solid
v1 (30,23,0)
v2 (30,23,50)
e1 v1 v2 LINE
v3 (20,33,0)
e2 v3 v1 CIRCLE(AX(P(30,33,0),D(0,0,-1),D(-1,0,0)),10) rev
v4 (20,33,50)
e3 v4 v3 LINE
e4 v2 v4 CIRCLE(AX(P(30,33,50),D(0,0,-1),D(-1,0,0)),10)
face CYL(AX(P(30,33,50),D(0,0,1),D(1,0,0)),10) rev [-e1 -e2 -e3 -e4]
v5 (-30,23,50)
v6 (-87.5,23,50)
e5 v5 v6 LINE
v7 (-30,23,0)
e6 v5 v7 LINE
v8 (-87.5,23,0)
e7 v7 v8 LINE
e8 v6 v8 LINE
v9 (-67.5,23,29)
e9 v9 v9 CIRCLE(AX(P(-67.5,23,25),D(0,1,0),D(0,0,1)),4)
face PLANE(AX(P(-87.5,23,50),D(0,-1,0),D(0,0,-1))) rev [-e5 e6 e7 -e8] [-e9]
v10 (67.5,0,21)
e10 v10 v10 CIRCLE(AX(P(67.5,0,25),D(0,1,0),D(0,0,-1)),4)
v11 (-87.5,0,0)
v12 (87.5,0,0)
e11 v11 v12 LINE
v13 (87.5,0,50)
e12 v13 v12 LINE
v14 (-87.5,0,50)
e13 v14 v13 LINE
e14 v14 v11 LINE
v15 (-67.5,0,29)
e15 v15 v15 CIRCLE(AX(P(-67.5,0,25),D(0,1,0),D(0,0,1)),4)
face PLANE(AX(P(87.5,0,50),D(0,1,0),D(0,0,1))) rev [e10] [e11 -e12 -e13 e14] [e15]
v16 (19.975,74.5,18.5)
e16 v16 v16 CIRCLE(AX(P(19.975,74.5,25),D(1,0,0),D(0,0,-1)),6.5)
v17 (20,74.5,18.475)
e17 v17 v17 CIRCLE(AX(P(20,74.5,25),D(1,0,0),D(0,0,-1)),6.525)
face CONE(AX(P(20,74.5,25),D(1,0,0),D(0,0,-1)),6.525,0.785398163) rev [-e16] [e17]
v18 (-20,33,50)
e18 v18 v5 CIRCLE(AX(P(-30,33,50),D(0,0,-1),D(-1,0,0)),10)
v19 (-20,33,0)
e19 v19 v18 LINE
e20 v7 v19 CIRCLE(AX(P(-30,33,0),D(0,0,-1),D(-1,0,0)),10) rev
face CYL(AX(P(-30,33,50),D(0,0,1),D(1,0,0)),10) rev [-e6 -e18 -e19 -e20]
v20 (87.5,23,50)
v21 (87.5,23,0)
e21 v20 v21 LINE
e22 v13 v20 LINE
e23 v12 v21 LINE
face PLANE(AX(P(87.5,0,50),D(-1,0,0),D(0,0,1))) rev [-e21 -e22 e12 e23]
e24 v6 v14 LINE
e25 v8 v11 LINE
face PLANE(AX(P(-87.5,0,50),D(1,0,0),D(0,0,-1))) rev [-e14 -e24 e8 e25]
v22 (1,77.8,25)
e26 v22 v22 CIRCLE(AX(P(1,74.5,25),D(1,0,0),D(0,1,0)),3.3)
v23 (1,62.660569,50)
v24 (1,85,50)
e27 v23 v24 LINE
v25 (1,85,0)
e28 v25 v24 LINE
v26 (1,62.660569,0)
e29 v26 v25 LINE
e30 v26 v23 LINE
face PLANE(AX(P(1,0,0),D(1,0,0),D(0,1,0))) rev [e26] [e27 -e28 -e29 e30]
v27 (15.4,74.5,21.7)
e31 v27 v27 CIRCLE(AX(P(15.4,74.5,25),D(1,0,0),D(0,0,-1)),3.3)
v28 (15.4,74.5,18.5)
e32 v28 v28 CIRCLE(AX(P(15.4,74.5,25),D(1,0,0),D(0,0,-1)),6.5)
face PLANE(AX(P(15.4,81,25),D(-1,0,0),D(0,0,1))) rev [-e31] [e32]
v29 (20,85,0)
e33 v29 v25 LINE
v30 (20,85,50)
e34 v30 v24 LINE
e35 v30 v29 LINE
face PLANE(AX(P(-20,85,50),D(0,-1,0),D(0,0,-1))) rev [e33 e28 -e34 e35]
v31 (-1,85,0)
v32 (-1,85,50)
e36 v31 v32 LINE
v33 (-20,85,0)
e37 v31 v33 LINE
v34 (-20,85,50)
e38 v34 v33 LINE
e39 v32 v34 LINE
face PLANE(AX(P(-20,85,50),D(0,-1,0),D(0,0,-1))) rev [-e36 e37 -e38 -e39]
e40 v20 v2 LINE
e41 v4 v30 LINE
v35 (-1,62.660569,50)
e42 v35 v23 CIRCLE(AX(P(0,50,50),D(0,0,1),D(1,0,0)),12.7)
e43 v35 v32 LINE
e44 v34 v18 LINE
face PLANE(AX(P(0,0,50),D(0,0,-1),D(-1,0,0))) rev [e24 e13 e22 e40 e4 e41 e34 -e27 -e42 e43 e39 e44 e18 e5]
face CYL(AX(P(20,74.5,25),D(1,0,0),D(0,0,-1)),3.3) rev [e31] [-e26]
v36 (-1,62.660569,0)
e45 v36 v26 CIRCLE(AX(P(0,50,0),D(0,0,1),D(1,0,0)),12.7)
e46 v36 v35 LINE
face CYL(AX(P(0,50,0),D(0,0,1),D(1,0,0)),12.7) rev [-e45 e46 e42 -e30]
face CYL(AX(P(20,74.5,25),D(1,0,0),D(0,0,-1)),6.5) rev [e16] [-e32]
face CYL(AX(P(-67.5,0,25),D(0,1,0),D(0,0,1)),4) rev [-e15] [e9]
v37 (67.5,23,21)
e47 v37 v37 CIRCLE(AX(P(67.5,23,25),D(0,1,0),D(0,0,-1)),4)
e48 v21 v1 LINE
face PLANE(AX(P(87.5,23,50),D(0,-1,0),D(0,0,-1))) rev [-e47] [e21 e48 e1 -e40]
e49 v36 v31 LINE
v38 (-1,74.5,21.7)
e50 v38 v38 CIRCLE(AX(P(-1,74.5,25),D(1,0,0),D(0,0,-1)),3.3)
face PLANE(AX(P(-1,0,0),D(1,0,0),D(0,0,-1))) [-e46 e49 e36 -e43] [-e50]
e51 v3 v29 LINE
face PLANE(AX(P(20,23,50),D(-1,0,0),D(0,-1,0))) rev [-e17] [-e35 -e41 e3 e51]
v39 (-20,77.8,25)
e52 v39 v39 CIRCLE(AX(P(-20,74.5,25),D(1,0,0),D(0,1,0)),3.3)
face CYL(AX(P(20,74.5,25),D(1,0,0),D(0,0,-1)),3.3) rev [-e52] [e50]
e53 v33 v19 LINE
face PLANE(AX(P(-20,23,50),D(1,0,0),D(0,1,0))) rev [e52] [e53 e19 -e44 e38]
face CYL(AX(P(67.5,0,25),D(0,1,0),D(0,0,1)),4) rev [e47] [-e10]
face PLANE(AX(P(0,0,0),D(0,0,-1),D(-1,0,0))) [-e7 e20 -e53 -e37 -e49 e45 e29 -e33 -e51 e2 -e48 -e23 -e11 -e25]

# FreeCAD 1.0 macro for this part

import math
import FreeCAD as App
import Part
import Sketcher
Q = App.Units.Quantity


def edges_at(feature, points):
    """Names of the edges that pass closest to the given points."""
    edges = feature.Shape.Edges
    near = lambda p: min(range(len(edges)), key=lambda i: edges[i].distToShape(Part.Vertex(*p))[0])
    return sorted({f"Edge{near(p) + 1}" for p in points})

doc = App.newDocument("Part")
params = doc.addObject("Spreadsheet::Sheet", "Params")
for row, (alias, value) in enumerate([
    ("sketch1_width", "175 mm"),
    ("sketch1_width2", "40 mm"),
    ("sketch1_height", "23 mm"),
    ("sketch1_height2", "62 mm"),
    ("pad1_length", "50 mm"),
    ("sketch2_diameter", "8 mm"),
    ("sketch3_radius", "12.7 mm"),
    ("sketch3_width", "2 mm"),
    ("fillet_radius", "10 mm"),
    ("sketch4_width", "107.5 mm"),
    ("sketch4_width2", "102.9 mm"),
    ("sketch4_height", "3.2 mm"),
    ("sketch4_height2", "3.3 mm"),
    ("groove_angle", "360 deg"),
], start=1):
    params.set(f"A{row}", alias)
    params.set(f"B{row}", "=" + value)
    params.setAlias(f"B{row}", alias)

body = doc.addObject("PartDesign::Body", "Body")

# Sketch on XY plane
sketch1 = doc.addObject("Sketcher::SketchObject", "Sketch")
body.addObject(sketch1)
sketch1.AttachmentSupport = (doc.XY_Plane, [""])
sketch1.MapMode = "FlatFace"
sketch1.addGeometry([
    Part.LineSegment(App.Vector(-88, 0, 0), App.Vector(88, 0, 0)),  # 0
    Part.LineSegment(App.Vector(88, 0, 0), App.Vector(88, 23, 0)),  # 1
    Part.LineSegment(App.Vector(88, 23, 0), App.Vector(20, 23, 0)),  # 2
    Part.LineSegment(App.Vector(20, 23, 0), App.Vector(20, 85, 0)),  # 3
    Part.LineSegment(App.Vector(20, 85, 0), App.Vector(-20, 85, 0)),  # 4
    Part.LineSegment(App.Vector(-20, 85, 0), App.Vector(-20, 23, 0)),  # 5
    Part.LineSegment(App.Vector(-20, 23, 0), App.Vector(-88, 23, 0)),  # 6
    Part.LineSegment(App.Vector(-88, 23, 0), App.Vector(-88, 0, 0)),  # 7
], False)
sketch1.addConstraint([
    Sketcher.Constraint("Coincident", 0, 2, 1, 1),
    Sketcher.Constraint("Coincident", 1, 2, 2, 1),
    Sketcher.Constraint("Coincident", 2, 2, 3, 1),
    Sketcher.Constraint("Coincident", 3, 2, 4, 1),
    Sketcher.Constraint("Coincident", 4, 2, 5, 1),
    Sketcher.Constraint("Coincident", 5, 2, 6, 1),
    Sketcher.Constraint("Coincident", 6, 2, 7, 1),
    Sketcher.Constraint("Coincident", 7, 2, 0, 1),
    Sketcher.Constraint("Horizontal", 0),
    Sketcher.Constraint("Vertical", 1),
    Sketcher.Constraint("Horizontal", 2),
    Sketcher.Constraint("Vertical", 3),
    Sketcher.Constraint("Horizontal", 4),
    Sketcher.Constraint("Vertical", 5),
    Sketcher.Constraint("Horizontal", 6),
    Sketcher.Constraint("Vertical", 7),
    Sketcher.Constraint("Symmetric", 0, 2, 7, 2, -1, 1),
    Sketcher.Constraint("Symmetric", 2, 2, 5, 2, -2),
    Sketcher.Constraint("DistanceX", 0, 1, 0, 2, 175.0),
    Sketcher.Constraint("DistanceX", 4, 2, 4, 1, 40.0),
    Sketcher.Constraint("DistanceY", 1, 1, 1, 2, 23.0),
    Sketcher.Constraint("DistanceY", 3, 1, 3, 2, 62.0),
])
sketch1.setExpression("Constraints[18]", "Params.sketch1_width")
sketch1.setExpression("Constraints[19]", "Params.sketch1_width2")
sketch1.setExpression("Constraints[20]", "Params.sketch1_height")
sketch1.setExpression("Constraints[21]", "Params.sketch1_height2")
pad1 = doc.addObject("PartDesign::Pad", "Pad")
body.addObject(pad1)
pad1.Profile = sketch1
pad1.setExpression("Length", "Params.pad1_length")

# Sketch on XZ plane
sketch2 = doc.addObject("Sketcher::SketchObject", "Sketch001")
body.addObject(sketch2)
sketch2.AttachmentSupport = (doc.XZ_Plane, [""])
sketch2.MapMode = "FlatFace"
sketch2.AttachmentOffset = App.Placement(App.Vector(0, 0, -23), App.Rotation())
sketch2.addGeometry([
    Part.Circle(App.Vector(-67.5, 25, 0), App.Vector(0, 0, 1), 4),
    Part.Circle(App.Vector(67.5, 25, 0), App.Vector(0, 0, 1), 4),
], False)
sketch2.addConstraint([
    Sketcher.Constraint("Equal", 0, 1),
    Sketcher.Constraint("Symmetric", 0, 3, 1, 3, -2),
    Sketcher.Constraint("Diameter", 0, 8.0),
    Sketcher.Constraint("DistanceY", -1, 1, 0, 3, 25.0),
    Sketcher.Constraint("DistanceX", 0, 3, 1, 3, 135.0),
])
sketch2.setExpression("Constraints[2]", "Params.sketch2_diameter")
pocket1 = doc.addObject("PartDesign::Pocket", "Pocket")
body.addObject(pocket1)
pocket1.Profile = sketch2
pocket1.Type = "ThroughAll"
pocket1.Reversed = True

# Sketch on XY plane
sketch3 = doc.addObject("Sketcher::SketchObject", "Sketch002")
body.addObject(sketch3)
sketch3.AttachmentSupport = (doc.XY_Plane, [""])
sketch3.MapMode = "FlatFace"
sketch3.AttachmentOffset = App.Placement(App.Vector(0, 0, 50), App.Rotation())
sketch3.addGeometry([
    Part.LineSegment(App.Vector(1, 62.7, 0), App.Vector(1, 116.5, 0)),
    Part.LineSegment(App.Vector(1, 116.5, 0), App.Vector(-1, 116.5, 0)),
    Part.LineSegment(App.Vector(-1, 116.5, 0), App.Vector(-1, 62.7, 0)),
    Part.ArcOfCircle(Part.Circle(App.Vector(0, 50, 0), App.Vector(0, 0, 1), 12.7), math.radians(95), math.radians(445)),
], False)
sketch3.addConstraint([
    Sketcher.Constraint("Coincident", 0, 2, 1, 1),
    Sketcher.Constraint("Coincident", 1, 2, 2, 1),
    Sketcher.Constraint("Coincident", 2, 2, 3, 1),
    Sketcher.Constraint("Coincident", 3, 2, 0, 1),
    Sketcher.Constraint("Vertical", 0),
    Sketcher.Constraint("Horizontal", 1),
    Sketcher.Constraint("Vertical", 2),
    Sketcher.Constraint("Symmetric", 2, 2, 3, 2, -2),
    Sketcher.Constraint("Radius", 3, 12.7),
    Sketcher.Constraint("DistanceX", 1, 2, 1, 1, 2.0),
    Sketcher.Constraint("DistanceY", -1, 1, 3, 3, 50.0),
    Sketcher.Constraint("DistanceY", -1, 1, 0, 2, 116.5),
])
sketch3.setExpression("Constraints[8]", "Params.sketch3_radius")
sketch3.setExpression("Constraints[9]", "Params.sketch3_width")
pocket2 = doc.addObject("PartDesign::Pocket", "Pocket001")
body.addObject(pocket2)
pocket2.Profile = sketch3
pocket2.Type = "ThroughAll"
doc.recompute()

fillet = doc.addObject("PartDesign::Fillet", "Fillet")
body.addObject(fillet)
fillet.Base = (pocket2, edges_at(pocket2, [(-20, 23, 25), (20, 23, 25)]))
fillet.setExpression("Radius", "Params.fillet_radius")

# Sketch on XZ plane
sketch4 = doc.addObject("Sketcher::SketchObject", "Sketch003")
body.addObject(sketch4)
sketch4.AttachmentSupport = (doc.XZ_Plane, [""])
sketch4.MapMode = "FlatFace"
sketch4.AttachmentOffset = App.Placement(App.Vector(0, 0, -74.5), App.Rotation())
sketch4.addGeometry([
    Part.LineSegment(App.Vector(-87.5, 25, 0), App.Vector(20, 25, 0)),  # 0
    Part.LineSegment(App.Vector(20, 25, 0), App.Vector(20, 18.475, 0)),  # 1
    Part.LineSegment(App.Vector(20, 18.475, 0), App.Vector(19.975, 18.5, 0)),  # 2
    Part.LineSegment(App.Vector(19.975, 18.5, 0), App.Vector(15.4, 18.5, 0)),  # 3
    Part.LineSegment(App.Vector(15.4, 18.5, 0), App.Vector(15.4, 21.7, 0)),  # 4
    Part.LineSegment(App.Vector(15.4, 21.7, 0), App.Vector(-87.5, 21.7, 0)),  # 5
    Part.LineSegment(App.Vector(-87.5, 21.7, 0), App.Vector(-87.5, 25, 0)),  # 6
], False)
sketch4.addGeometry(Part.LineSegment(App.Vector(20, 25, 0), App.Vector(-87.5, 25, 0)), True)  # axis
sketch4.addConstraint([
    Sketcher.Constraint("Coincident", 0, 2, 1, 1),
    Sketcher.Constraint("Coincident", 1, 2, 2, 1),
    Sketcher.Constraint("Coincident", 2, 2, 3, 1),
    Sketcher.Constraint("Coincident", 3, 2, 4, 1),
    Sketcher.Constraint("Coincident", 4, 2, 5, 1),
    Sketcher.Constraint("Coincident", 5, 2, 6, 1),
    Sketcher.Constraint("Coincident", 6, 2, 0, 1),
    Sketcher.Constraint("Horizontal", 0),
    Sketcher.Constraint("Vertical", 1),
    Sketcher.Constraint("Horizontal", 3),
    Sketcher.Constraint("Vertical", 4),
    Sketcher.Constraint("Horizontal", 5),
    Sketcher.Constraint("Vertical", 6),
    Sketcher.Constraint("Horizontal", 7),
    Sketcher.Constraint("Coincident", 7, 1, 0, 2),
    Sketcher.Constraint("Vertical", 5, 2, 7, 2),
    Sketcher.Constraint("Angle", 2, Q("135 deg")),
    Sketcher.Constraint("DistanceX", 0, 1, 0, 2, 107.5),
    Sketcher.Constraint("DistanceX", 5, 2, 5, 1, 102.9),
    Sketcher.Constraint("DistanceY", 4, 1, 4, 2, 3.2),
    Sketcher.Constraint("DistanceY", 6, 1, 6, 2, 3.3),
    Sketcher.Constraint("DistanceX", -1, 1, 0, 2, 20.0),
    Sketcher.Constraint("DistanceY", -1, 1, 0, 2, 25.0),
    Sketcher.Constraint("DistanceX", 3, 2, 3, 1, 4.575),
])
sketch4.setExpression("Constraints[17]", "Params.sketch4_width")
sketch4.setExpression("Constraints[18]", "Params.sketch4_width2")
sketch4.setExpression("Constraints[19]", "Params.sketch4_height")
sketch4.setExpression("Constraints[20]", "Params.sketch4_height2")
groove = doc.addObject("PartDesign::Groove", "Groove")
body.addObject(groove)
groove.Profile = sketch4
groove.ReferenceAxis = (sketch4, ["Axis0"])
groove.setExpression("Angle", "Params.groove_angle")

doc.recompute()
